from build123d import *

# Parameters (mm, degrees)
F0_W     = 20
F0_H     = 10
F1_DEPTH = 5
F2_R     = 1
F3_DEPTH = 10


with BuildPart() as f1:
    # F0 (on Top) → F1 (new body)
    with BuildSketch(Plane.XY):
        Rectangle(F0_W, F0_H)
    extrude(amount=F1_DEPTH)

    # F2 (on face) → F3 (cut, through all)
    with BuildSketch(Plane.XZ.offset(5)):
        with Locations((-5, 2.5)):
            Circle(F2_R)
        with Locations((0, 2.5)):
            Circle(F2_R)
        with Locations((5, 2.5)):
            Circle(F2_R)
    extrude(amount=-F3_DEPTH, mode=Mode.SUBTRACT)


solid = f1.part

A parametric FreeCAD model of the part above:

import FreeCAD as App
import Part
import Sketcher
from FreeCAD import Vector

doc = App.newDocument("Part")
params = doc.addObject("Spreadsheet::Sheet", "Params")
for row, (alias, value) in enumerate([
    ("sketch1_width", "20 mm"),
    ("sketch1_height", "10 mm"),
    ("pad1_length", "5 mm"),
    ("sketch2_diameter", "2 mm"),
], start=1):
    params.set(f"A{row}", alias)
    params.set(f"B{row}", "=" + value)
    params.setAlias(f"B{row}", alias)

body = doc.addObject("PartDesign::Body", "Body")

# Sketch on XY plane
sketch1 = body.newObject("Sketcher::SketchObject", "Sketch")
sketch1.AttachmentSupport = (doc.getObject("XY_Plane"), [""])
sketch1.MapMode = "FlatFace"
sketch1.addGeometry(Part.LineSegment(Vector(-10, 5, 0), Vector(-10, -5, 0)), False)
sketch1.addGeometry(Part.LineSegment(Vector(-10, -5, 0), Vector(10, -5, 0)), False)
sketch1.addGeometry(Part.LineSegment(Vector(10, -5, 0), Vector(10, 5, 0)), False)
sketch1.addGeometry(Part.LineSegment(Vector(10, 5, 0), Vector(-10, 5, 0)), False)
sketch1.addConstraint(Sketcher.Constraint("Coincident", 0, 2, 1, 1))
sketch1.addConstraint(Sketcher.Constraint("Coincident", 1, 2, 2, 1))
sketch1.addConstraint(Sketcher.Constraint("Coincident", 2, 2, 3, 1))
sketch1.addConstraint(Sketcher.Constraint("Coincident", 3, 2, 0, 1))
sketch1.addConstraint(Sketcher.Constraint("Vertical", 0))
sketch1.addConstraint(Sketcher.Constraint("Horizontal", 1))
sketch1.addConstraint(Sketcher.Constraint("Vertical", 2))
sketch1.addConstraint(Sketcher.Constraint("Horizontal", 3))
sketch1.addConstraint(Sketcher.Constraint("Symmetric", 0, 2, 2, 2, -1, 1))
sketch1.addConstraint(Sketcher.Constraint("DistanceX", 1, 1, 1, 2, 20.0))
sketch1.addConstraint(Sketcher.Constraint("DistanceY", 0, 2, 0, 1, 10.0))
sketch1.setExpression("Constraints[9]", "Params.sketch1_width")
sketch1.setExpression("Constraints[10]", "Params.sketch1_height")
pad1 = body.newObject("PartDesign::Pad", "Pad")
pad1.Profile = sketch1
pad1.setExpression("Length", "Params.pad1_length")

# Sketch on XZ plane
sketch2 = body.newObject("Sketcher::SketchObject", "Sketch001")
sketch2.AttachmentSupport = (doc.getObject("XZ_Plane"), [""])
sketch2.MapMode = "FlatFace"
sketch2.AttachmentOffset = App.Placement(Vector(0, 0, 5), App.Rotation())
sketch2.addGeometry(Part.Circle(Vector(-5, 2.5, 0), Vector(0, 0, 1), 1), False)
sketch2.addGeometry(Part.Circle(Vector(0, 2.5, 0), Vector(0, 0, 1), 1), False)
sketch2.addGeometry(Part.Circle(Vector(5, 2.5, 0), Vector(0, 0, 1), 1), False)
sketch2.addConstraint(Sketcher.Constraint("Equal", 0, 1))
sketch2.addConstraint(Sketcher.Constraint("Equal", 1, 2))
sketch2.addConstraint(Sketcher.Constraint("Symmetric", 0, 3, 2, 3, -2))
sketch2.addConstraint(Sketcher.Constraint("PointOnObject", 1, 3, -2))
sketch2.addConstraint(Sketcher.Constraint("Horizontal", 0, 3, 1, 3))
sketch2.addConstraint(Sketcher.Constraint("Diameter", 0, 2.0))
sketch2.addConstraint(Sketcher.Constraint("DistanceX", 0, 3, -1, 1, 5.0))
sketch2.addConstraint(Sketcher.Constraint("DistanceY", -1, 1, 0, 3, 2.5))
sketch2.setExpression("Constraints[5]", "Params.sketch2_diameter")
pocket1 = body.newObject("PartDesign::Pocket", "Pocket")
pocket1.Profile = sketch2
pocket1.Type = "ThroughAll"

doc.recompute()
